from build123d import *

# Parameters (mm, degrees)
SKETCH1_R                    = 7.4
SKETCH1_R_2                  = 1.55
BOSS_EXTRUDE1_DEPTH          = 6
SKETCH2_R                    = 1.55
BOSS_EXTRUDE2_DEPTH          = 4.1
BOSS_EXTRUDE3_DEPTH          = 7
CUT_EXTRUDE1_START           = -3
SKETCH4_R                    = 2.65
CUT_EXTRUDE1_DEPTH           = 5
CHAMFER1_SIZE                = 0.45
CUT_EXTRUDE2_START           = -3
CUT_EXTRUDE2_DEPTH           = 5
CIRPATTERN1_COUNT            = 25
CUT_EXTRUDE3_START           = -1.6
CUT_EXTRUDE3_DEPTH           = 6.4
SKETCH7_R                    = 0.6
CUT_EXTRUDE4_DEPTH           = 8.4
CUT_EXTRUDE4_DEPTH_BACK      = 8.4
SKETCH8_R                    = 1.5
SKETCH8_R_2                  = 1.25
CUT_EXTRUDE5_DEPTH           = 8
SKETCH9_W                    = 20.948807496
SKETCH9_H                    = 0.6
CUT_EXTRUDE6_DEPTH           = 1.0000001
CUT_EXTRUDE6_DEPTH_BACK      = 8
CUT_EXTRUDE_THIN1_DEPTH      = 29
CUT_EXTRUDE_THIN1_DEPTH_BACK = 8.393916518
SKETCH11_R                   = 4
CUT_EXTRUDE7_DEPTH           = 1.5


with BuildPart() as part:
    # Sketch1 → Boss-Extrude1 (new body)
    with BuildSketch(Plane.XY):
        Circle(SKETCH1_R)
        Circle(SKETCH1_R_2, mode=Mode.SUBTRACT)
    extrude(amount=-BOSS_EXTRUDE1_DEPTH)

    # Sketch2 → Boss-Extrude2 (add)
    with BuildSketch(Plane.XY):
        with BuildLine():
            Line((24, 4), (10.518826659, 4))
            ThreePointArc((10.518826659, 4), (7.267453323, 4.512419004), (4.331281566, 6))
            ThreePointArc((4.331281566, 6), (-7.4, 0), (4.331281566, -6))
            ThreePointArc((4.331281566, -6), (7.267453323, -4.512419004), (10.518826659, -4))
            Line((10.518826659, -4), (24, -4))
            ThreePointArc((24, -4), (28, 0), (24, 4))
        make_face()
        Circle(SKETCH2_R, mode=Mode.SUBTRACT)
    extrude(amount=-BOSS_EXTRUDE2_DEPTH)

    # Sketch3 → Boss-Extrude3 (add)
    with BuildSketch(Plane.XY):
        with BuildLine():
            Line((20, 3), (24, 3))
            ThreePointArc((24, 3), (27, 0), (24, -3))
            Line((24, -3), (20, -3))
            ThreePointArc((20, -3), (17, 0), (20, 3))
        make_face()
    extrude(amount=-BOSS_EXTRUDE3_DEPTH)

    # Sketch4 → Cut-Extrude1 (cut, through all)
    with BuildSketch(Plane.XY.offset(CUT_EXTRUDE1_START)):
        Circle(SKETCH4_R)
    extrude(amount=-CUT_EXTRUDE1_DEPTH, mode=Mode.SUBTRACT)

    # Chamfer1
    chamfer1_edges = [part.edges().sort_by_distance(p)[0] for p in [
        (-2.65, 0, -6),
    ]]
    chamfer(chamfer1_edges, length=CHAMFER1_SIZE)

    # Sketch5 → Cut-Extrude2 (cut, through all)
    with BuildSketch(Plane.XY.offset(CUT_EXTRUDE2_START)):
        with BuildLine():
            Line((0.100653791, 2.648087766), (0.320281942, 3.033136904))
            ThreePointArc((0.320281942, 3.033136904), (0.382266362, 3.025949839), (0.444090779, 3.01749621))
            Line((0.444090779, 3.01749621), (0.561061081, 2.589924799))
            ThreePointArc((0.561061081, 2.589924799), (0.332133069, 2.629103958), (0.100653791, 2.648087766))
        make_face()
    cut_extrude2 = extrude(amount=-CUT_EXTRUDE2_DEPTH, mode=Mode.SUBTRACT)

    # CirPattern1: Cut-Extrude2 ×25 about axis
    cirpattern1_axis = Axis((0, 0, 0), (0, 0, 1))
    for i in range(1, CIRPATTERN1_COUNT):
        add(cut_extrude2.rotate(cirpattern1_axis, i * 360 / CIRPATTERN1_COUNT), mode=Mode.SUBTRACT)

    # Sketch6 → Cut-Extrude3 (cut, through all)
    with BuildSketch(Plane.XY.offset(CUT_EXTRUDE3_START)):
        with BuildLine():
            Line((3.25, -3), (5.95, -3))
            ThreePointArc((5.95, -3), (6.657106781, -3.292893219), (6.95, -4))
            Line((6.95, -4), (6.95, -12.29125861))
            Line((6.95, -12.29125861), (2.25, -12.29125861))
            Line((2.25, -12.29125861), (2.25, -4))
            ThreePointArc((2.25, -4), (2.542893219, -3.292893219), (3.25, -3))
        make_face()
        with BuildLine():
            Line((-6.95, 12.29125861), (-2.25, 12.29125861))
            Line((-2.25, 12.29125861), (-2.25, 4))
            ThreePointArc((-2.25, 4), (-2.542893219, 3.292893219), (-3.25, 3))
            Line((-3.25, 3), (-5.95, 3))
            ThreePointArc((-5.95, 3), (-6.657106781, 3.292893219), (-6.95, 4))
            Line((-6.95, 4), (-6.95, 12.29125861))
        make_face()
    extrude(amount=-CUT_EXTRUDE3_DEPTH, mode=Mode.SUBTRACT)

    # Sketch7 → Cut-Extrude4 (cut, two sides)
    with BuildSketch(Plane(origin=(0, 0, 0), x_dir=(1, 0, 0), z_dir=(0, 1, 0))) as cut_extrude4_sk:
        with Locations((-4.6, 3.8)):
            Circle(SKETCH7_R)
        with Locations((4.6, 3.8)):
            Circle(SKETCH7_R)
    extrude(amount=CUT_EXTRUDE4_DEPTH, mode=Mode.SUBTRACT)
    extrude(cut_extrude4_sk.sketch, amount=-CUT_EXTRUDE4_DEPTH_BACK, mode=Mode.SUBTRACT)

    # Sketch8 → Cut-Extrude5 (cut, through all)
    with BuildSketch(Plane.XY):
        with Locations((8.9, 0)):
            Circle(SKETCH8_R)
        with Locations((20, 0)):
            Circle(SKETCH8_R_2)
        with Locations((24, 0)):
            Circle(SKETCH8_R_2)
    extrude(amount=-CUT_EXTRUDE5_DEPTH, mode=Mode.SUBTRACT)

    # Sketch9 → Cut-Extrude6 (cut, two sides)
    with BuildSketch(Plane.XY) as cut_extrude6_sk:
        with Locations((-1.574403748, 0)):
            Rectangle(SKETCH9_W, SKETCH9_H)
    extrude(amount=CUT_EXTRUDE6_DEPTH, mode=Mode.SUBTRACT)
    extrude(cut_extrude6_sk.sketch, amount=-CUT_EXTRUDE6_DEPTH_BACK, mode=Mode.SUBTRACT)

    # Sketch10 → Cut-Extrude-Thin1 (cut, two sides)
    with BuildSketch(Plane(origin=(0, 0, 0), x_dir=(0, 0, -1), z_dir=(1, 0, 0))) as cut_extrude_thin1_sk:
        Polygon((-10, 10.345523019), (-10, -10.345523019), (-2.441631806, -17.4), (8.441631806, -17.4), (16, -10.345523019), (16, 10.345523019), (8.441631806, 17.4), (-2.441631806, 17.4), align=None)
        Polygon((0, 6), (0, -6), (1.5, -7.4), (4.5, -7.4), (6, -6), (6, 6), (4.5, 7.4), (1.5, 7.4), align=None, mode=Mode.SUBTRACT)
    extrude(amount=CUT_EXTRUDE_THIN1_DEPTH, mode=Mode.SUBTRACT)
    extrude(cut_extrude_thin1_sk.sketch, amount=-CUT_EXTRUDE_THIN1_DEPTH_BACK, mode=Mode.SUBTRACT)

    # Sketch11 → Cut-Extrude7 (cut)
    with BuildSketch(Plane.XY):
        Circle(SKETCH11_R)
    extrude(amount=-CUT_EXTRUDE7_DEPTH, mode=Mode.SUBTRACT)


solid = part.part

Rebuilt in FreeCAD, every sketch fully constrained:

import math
import FreeCAD as App
import Part
import Sketcher

V = App.Vector
Q = App.Units.Quantity


def edges_at(feature, points):
    """Names of the edges that pass closest to the given points."""
    edges = feature.Shape.Edges
    near = lambda p: min(range(len(edges)), key=lambda i: edges[i].distToShape(Part.Vertex(*p))[0])
    return sorted({f"Edge{near(p) + 1}" for p in points})

doc = App.newDocument("Part")
body = doc.addObject("PartDesign::Body", "Body")

sketch1 = doc.addObject("Sketcher::SketchObject", "Sketch")
body.addObject(sketch1)
sketch1.AttachmentSupport = (doc.XY_Plane, [""])
sketch1.MapMode = "FlatFace"
sketch1.addGeometry(Part.Circle(V(0, 0, 0), V(0, 0, 1), 7.4), False)
sketch1.addGeometry(Part.Circle(V(0, 0, 0), V(0, 0, 1), 1.6), False)
sketch1.addConstraint(Sketcher.Constraint("Coincident", 0, 3, -1, 1))
sketch1.addConstraint(Sketcher.Constraint("Coincident", 1, 3, -1, 1))
sketch1.addConstraint(Sketcher.Constraint("Diameter", 0, Q("14.8 mm")))
sketch1.addConstraint(Sketcher.Constraint("Diameter", 1, Q("3.1 mm")))
pad1 = doc.addObject("PartDesign::Pad", "Pad")
body.addObject(pad1)
pad1.Profile = sketch1
pad1.Length = 6
pad1.Reversed = True

sketch2 = doc.addObject("Sketcher::SketchObject", "Sketch001")
body.addObject(sketch2)
sketch2.AttachmentSupport = (doc.XY_Plane, [""])
sketch2.MapMode = "FlatFace"
sketch2.addGeometry(Part.LineSegment(V(24, 4, 0), V(10.5, 4, 0)), False)
sketch2.addGeometry(Part.ArcOfCircle(Part.Circle(V(10.5, 14.6, 0), V(0, 0, 1), 10.6), math.radians(-126), math.radians(-90)), False)
sketch2.addGeometry(Part.ArcOfCircle(Part.Circle(V(0, 0, 0), V(0, 0, 1), 7.4), math.radians(54), math.radians(306)), False)
sketch2.addGeometry(Part.ArcOfCircle(Part.Circle(V(10.5, -14.6, 0), V(0, 0, 1), 10.6), math.radians(90), math.radians(126)), False)
sketch2.addGeometry(Part.LineSegment(V(10.5, -4, 0), V(24, -4, 0)), False)
sketch2.addGeometry(Part.ArcOfCircle(Part.Circle(V(24, 0, 0), V(0, 0, 1), 4), math.radians(-90), math.radians(90)), False)
sketch2.addGeometry(Part.Circle(V(0, 0, 0), V(0, 0, 1), 1.6), False)
sketch2.addConstraint(Sketcher.Constraint("Tangent", 0, 2, 1, 2))
sketch2.addConstraint(Sketcher.Constraint("Tangent", 1, 1, 2, 1))
sketch2.addConstraint(Sketcher.Constraint("Tangent", 2, 2, 3, 2))
sketch2.addConstraint(Sketcher.Constraint("Tangent", 3, 1, 4, 1))
sketch2.addConstraint(Sketcher.Constraint("Tangent", 4, 2, 5, 1))
sketch2.addConstraint(Sketcher.Constraint("Tangent", 5, 2, 0, 1))
sketch2.addConstraint(Sketcher.Constraint("Horizontal", 0))
sketch2.addConstraint(Sketcher.Constraint("Horizontal", 4))
sketch2.addConstraint(Sketcher.Constraint("Coincident", 2, 3, -1, 1))
sketch2.addConstraint(Sketcher.Constraint("Coincident", 6, 3, -1, 1))
sketch2.addConstraint(Sketcher.Constraint("Equal", 1, 3))
sketch2.addConstraint(Sketcher.Constraint("PointOnObject", 5, 3, -1))
sketch2.addConstraint(Sketcher.Constraint("Radius", 5, Q("4 mm")))
sketch2.addConstraint(Sketcher.Constraint("Diameter", 6, Q("3.1 mm")))
sketch2.addConstraint(Sketcher.Constraint("Radius", 2, Q("7.4 mm")))
sketch2.addConstraint(Sketcher.Constraint("DistanceX", -1, 1, 5, 3, Q("24 mm")))
sketch2.addConstraint(Sketcher.Constraint("DistanceY", -1, 1, 1, 1, Q("6 mm")))
pad2 = doc.addObject("PartDesign::Pad", "Pad001")
body.addObject(pad2)
pad2.Profile = sketch2
pad2.Length = 4.1
pad2.Reversed = True

sketch3 = doc.addObject("Sketcher::SketchObject", "Sketch002")
body.addObject(sketch3)
sketch3.AttachmentSupport = (doc.XY_Plane, [""])
sketch3.MapMode = "FlatFace"
sketch3.addGeometry(Part.LineSegment(V(24, 3, 0), V(20, 3, 0)), False)
sketch3.addGeometry(Part.ArcOfCircle(Part.Circle(V(20, 0, 0), V(0, 0, 1), 3), math.radians(90), math.radians(270)), False)
sketch3.addGeometry(Part.LineSegment(V(20, -3, 0), V(24, -3, 0)), False)
sketch3.addGeometry(Part.ArcOfCircle(Part.Circle(V(24, 0, 0), V(0, 0, 1), 3), math.radians(-90), math.radians(90)), False)
sketch3.addConstraint(Sketcher.Constraint("Tangent", 0, 2, 1, 1))
sketch3.addConstraint(Sketcher.Constraint("Tangent", 1, 2, 2, 1))
sketch3.addConstraint(Sketcher.Constraint("Tangent", 2, 2, 3, 1))
sketch3.addConstraint(Sketcher.Constraint("Tangent", 3, 2, 0, 1))
sketch3.addConstraint(Sketcher.Constraint("Horizontal", 0))
sketch3.addConstraint(Sketcher.Constraint("Horizontal", 2))
sketch3.addConstraint(Sketcher.Constraint("PointOnObject", 1, 3, -1))
sketch3.addConstraint(Sketcher.Constraint("Radius", 1, Q("3 mm")))
sketch3.addConstraint(Sketcher.Constraint("DistanceX", 0, 2, 0, 1, Q("4 mm")))
sketch3.addConstraint(Sketcher.Constraint("DistanceX", -1, 1, 1, 3, Q("20 mm")))
pad3 = doc.addObject("PartDesign::Pad", "Pad002")
body.addObject(pad3)
pad3.Profile = sketch3
pad3.Length = 7
pad3.Reversed = True

sketch4 = doc.addObject("Sketcher::SketchObject", "Sketch003")
body.addObject(sketch4)
sketch4.AttachmentSupport = (doc.XY_Plane, [""])
sketch4.MapMode = "FlatFace"
sketch4.AttachmentOffset = App.Placement(V(0, 0, -3), App.Rotation())
sketch4.addGeometry(Part.Circle(V(0, 0, 0), V(0, 0, 1), 2.6), False)
sketch4.addConstraint(Sketcher.Constraint("Coincident", 0, 3, -1, 1))
sketch4.addConstraint(Sketcher.Constraint("Diameter", 0, Q("5.3 mm")))
pocket1 = doc.addObject("PartDesign::Pocket", "Pocket")
body.addObject(pocket1)
pocket1.Profile = sketch4
pocket1.Type = "ThroughAll"
doc.recompute()

chamfer = doc.addObject("PartDesign::Chamfer", "Chamfer")
body.addObject(chamfer)
chamfer.Base = (pocket1, edges_at(pocket1, [(-2.65, 0, -6)]))
chamfer.Size = 0.45

sketch5 = doc.addObject("Sketcher::SketchObject", "Sketch004")
body.addObject(sketch5)
sketch5.AttachmentSupport = (doc.XY_Plane, [""])
sketch5.MapMode = "FlatFace"
sketch5.AttachmentOffset = App.Placement(V(0, 0, -3), App.Rotation())
sketch5.addGeometry(Part.LineSegment(V(0.32, 3.03, 0), V(0.1, 2.65, 0)), False)
sketch5.addGeometry(Part.ArcOfCircle(Part.Circle(V(0, 0, 0), V(0, 0, 1), 2.65), math.radians(77.78), math.radians(87.82)), False)
sketch5.addGeometry(Part.LineSegment(V(0.56, 2.59, 0), V(0.44, 3.02, 0)), False)
sketch5.addGeometry(Part.ArcOfCircle(Part.Circle(V(0, 0, 0), V(0, 0, 1), 3.05), math.radians(81.63), math.radians(83.97)), False)
sketch5.addConstraint(Sketcher.Constraint("Coincident", 0, 2, 1, 2))
sketch5.addConstraint(Sketcher.Constraint("Coincident", 1, 1, 2, 1))
sketch5.addConstraint(Sketcher.Constraint("Coincident", 2, 2, 3, 1))
sketch5.addConstraint(Sketcher.Constraint("Coincident", 3, 2, 0, 1))
sketch5.addConstraint(Sketcher.Constraint("Coincident", 1, 3, -1, 1))
sketch5.addConstraint(Sketcher.Constraint("Coincident", 3, 3, -1, 1))
sketch5.addConstraint(Sketcher.Constraint("Equal", 0, 2))
sketch5.addConstraint(Sketcher.Constraint("Radius", 1, Q("2.65 mm")))
sketch5.addConstraint(Sketcher.Constraint("Radius", 3, Q("3.05 mm")))
sketch5.addConstraint(Sketcher.Constraint("Angle", 0, Q("-119.7 deg")))
sketch5.addConstraint(Sketcher.Constraint("Angle", 2, Q("105.3 deg")))
sketch5.addConstraint(Sketcher.Constraint("DistanceX", -1, 1, 1, 1, Q("0.561061 mm")))
pocket2 = doc.addObject("PartDesign::Pocket", "Pocket001")
body.addObject(pocket2)
pocket2.Profile = sketch5
pocket2.Type = "ThroughAll"
doc.recompute()

polarpattern = doc.addObject("PartDesign::PolarPattern", "PolarPattern")
body.addObject(polarpattern)
polarpattern.Originals = [pocket2]
polarpattern.Axis = (doc.Z_Axis, [""])
polarpattern.Angle = 360
polarpattern.Occurrences = 25
body.Tip = polarpattern

sketch6 = doc.addObject("Sketcher::SketchObject", "Sketch005")
body.addObject(sketch6)
sketch6.AttachmentSupport = (doc.XY_Plane, [""])
sketch6.MapMode = "FlatFace"
sketch6.AttachmentOffset = App.Placement(V(0, 0, -1.6), App.Rotation())
sketch6.addGeometry(Part.LineSegment(V(6, -3, 0), V(3.2, -3, 0)), False)
sketch6.addGeometry(Part.ArcOfCircle(Part.Circle(V(3.3, -4, 0), V(0, 0, 1), 1), math.radians(90), math.radians(180)), False)
sketch6.addGeometry(Part.LineSegment(V(2.2, -4, 0), V(2.2, -12.3, 0)), False)
sketch6.addGeometry(Part.LineSegment(V(2.2, -12.3, 0), V(7, -12.3, 0)), False)
sketch6.addGeometry(Part.LineSegment(V(7, -12.3, 0), V(7, -4, 0)), False)
sketch6.addGeometry(Part.ArcOfCircle(Part.Circle(V(5.9, -4, 0), V(0, 0, 1), 1), math.radians(0), math.radians(90)), False)
sketch6.addGeometry(Part.LineSegment(V(-2.2, 12.3, 0), V(-7, 12.3, 0)), False)
sketch6.addGeometry(Part.LineSegment(V(-7, 12.3, 0), V(-7, 4, 0)), False)
sketch6.addGeometry(Part.ArcOfCircle(Part.Circle(V(-5.9, 4, 0), V(0, 0, 1), 1), math.radians(-180), math.radians(-90)), False)
sketch6.addGeometry(Part.LineSegment(V(-6, 3, 0), V(-3.2, 3, 0)), False)
sketch6.addGeometry(Part.ArcOfCircle(Part.Circle(V(-3.3, 4, 0), V(0, 0, 1), 1), math.radians(-90), math.radians(0)), False)
sketch6.addGeometry(Part.LineSegment(V(-2.2, 4, 0), V(-2.2, 12.3, 0)), False)
sketch6.addConstraint(Sketcher.Constraint("Tangent", 0, 2, 1, 1))
sketch6.addConstraint(Sketcher.Constraint("Tangent", 1, 2, 2, 1))
sketch6.addConstraint(Sketcher.Constraint("Coincident", 2, 2, 3, 1))
sketch6.addConstraint(Sketcher.Constraint("Coincident", 3, 2, 4, 1))
sketch6.addConstraint(Sketcher.Constraint("Tangent", 4, 2, 5, 1))
sketch6.addConstraint(Sketcher.Constraint("Tangent", 5, 2, 0, 1))
sketch6.addConstraint(Sketcher.Constraint("Coincident", 6, 2, 7, 1))
sketch6.addConstraint(Sketcher.Constraint("Tangent", 7, 2, 8, 1))
sketch6.addConstraint(Sketcher.Constraint("Tangent", 8, 2, 9, 1))
sketch6.addConstraint(Sketcher.Constraint("Tangent", 9, 2, 10, 1))
sketch6.addConstraint(Sketcher.Constraint("Tangent", 10, 2, 11, 1))
sketch6.addConstraint(Sketcher.Constraint("Coincident", 11, 2, 6, 1))
sketch6.addConstraint(Sketcher.Constraint("Horizontal", 0))
sketch6.addConstraint(Sketcher.Constraint("Vertical", 2))
sketch6.addConstraint(Sketcher.Constraint("Horizontal", 3))
sketch6.addConstraint(Sketcher.Constraint("Vertical", 4))
sketch6.addConstraint(Sketcher.Constraint("Horizontal", 6))
sketch6.addConstraint(Sketcher.Constraint("Vertical", 7))
sketch6.addConstraint(Sketcher.Constraint("Horizontal", 9))
sketch6.addConstraint(Sketcher.Constraint("Vertical", 11))
sketch6.addConstraint(Sketcher.Constraint("Equal", 1, 5))
sketch6.addConstraint(Sketcher.Constraint("Equal", 5, 8))
sketch6.addConstraint(Sketcher.Constraint("Equal", 8, 10))
sketch6.addConstraint(Sketcher.Constraint("Symmetric", 5, 3, 8, 3, -1, 1))
sketch6.addConstraint(Sketcher.Constraint("Symmetric", 2, 2, 11, 2, -1, 1))
sketch6.addConstraint(Sketcher.Constraint("Radius", 1, Q("1 mm")))
sketch6.addConstraint(Sketcher.Constraint("DistanceX", 0, 2, 0, 1, Q("2.7 mm")))
sketch6.addConstraint(Sketcher.Constraint("DistanceY", 1, 3, -1, 1, Q("4 mm")))
sketch6.addConstraint(Sketcher.Constraint("DistanceX", 8, 3, 1, 3, Q("9.2 mm")))
sketch6.addConstraint(Sketcher.Constraint("DistanceY", 2, 2, 2, 1, Q("8.291259 mm")))
pocket3 = doc.addObject("PartDesign::Pocket", "Pocket002")
body.addObject(pocket3)
pocket3.Profile = sketch6
pocket3.Type = "ThroughAll"

sketch7 = doc.addObject("Sketcher::SketchObject", "Sketch006")
body.addObject(sketch7)
sketch7.AttachmentSupport = (doc.XZ_Plane, [""])
sketch7.MapMode = "FlatFace"
sketch7.addGeometry(Part.Circle(V(-4.6, -3.8, 0), V(0, 0, 1), 0.6), False)
sketch7.addGeometry(Part.Circle(V(4.6, -3.8, 0), V(0, 0, 1), 0.6), False)
sketch7.addConstraint(Sketcher.Constraint("Equal", 0, 1))
sketch7.addConstraint(Sketcher.Constraint("Symmetric", 0, 3, 1, 3, -2))
sketch7.addConstraint(Sketcher.Constraint("Diameter", 0, Q("1.2 mm")))
sketch7.addConstraint(Sketcher.Constraint("DistanceX", 0, 3, -1, 1, Q("4.6 mm")))
sketch7.addConstraint(Sketcher.Constraint("DistanceY", 0, 3, -1, 1, Q("3.8 mm")))
pocket4 = doc.addObject("PartDesign::Pocket", "Pocket003")
body.addObject(pocket4)
pocket4.Profile = sketch7
pocket4.Type = "ThroughAll"
pocket4.Midplane = True

sketch8 = doc.addObject("Sketcher::SketchObject", "Sketch007")
body.addObject(sketch8)
sketch8.AttachmentSupport = (doc.XY_Plane, [""])
sketch8.MapMode = "FlatFace"
sketch8.addGeometry(Part.Circle(V(8.9, 0, 0), V(0, 0, 1), 1.5), False)
sketch8.addGeometry(Part.Circle(V(20, 0, 0), V(0, 0, 1), 1.2), False)
sketch8.addGeometry(Part.Circle(V(24, 0, 0), V(0, 0, 1), 1.2), False)
sketch8.addConstraint(Sketcher.Constraint("Equal", 1, 2))
sketch8.addConstraint(Sketcher.Constraint("PointOnObject", 0, 3, -1))
sketch8.addConstraint(Sketcher.Constraint("PointOnObject", 1, 3, -1))
sketch8.addConstraint(Sketcher.Constraint("PointOnObject", 2, 3, -1))
sketch8.addConstraint(Sketcher.Constraint("Diameter", 0, Q("3 mm")))
sketch8.addConstraint(Sketcher.Constraint("Diameter", 1, Q("2.5 mm")))
sketch8.addConstraint(Sketcher.Constraint("DistanceX", -1, 1, 1, 3, Q("20 mm")))
sketch8.addConstraint(Sketcher.Constraint("DistanceX", -1, 1, 2, 3, Q("24 mm")))
sketch8.addConstraint(Sketcher.Constraint("DistanceX", -1, 1, 0, 3, Q("8.9 mm")))
pocket5 = doc.addObject("PartDesign::Pocket", "Pocket004")
body.addObject(pocket5)
pocket5.Profile = sketch8
pocket5.Type = "ThroughAll"

sketch9 = doc.addObject("Sketcher::SketchObject", "Sketch008")
body.addObject(sketch9)
sketch9.AttachmentSupport = (doc.XY_Plane, [""])
sketch9.MapMode = "FlatFace"
sketch9.addGeometry(Part.LineSegment(V(-12, 0.3, 0), V(-12, -0.3, 0)), False)
sketch9.addGeometry(Part.LineSegment(V(-12, -0.3, 0), V(8.9, -0.3, 0)), False)
sketch9.addGeometry(Part.LineSegment(V(8.9, -0.3, 0), V(8.9, 0.3, 0)), False)
sketch9.addGeometry(Part.LineSegment(V(8.9, 0.3, 0), V(-12, 0.3, 0)), False)
sketch9.addConstraint(Sketcher.Constraint("Coincident", 0, 2, 1, 1))
sketch9.addConstraint(Sketcher.Constraint("Coincident", 1, 2, 2, 1))
sketch9.addConstraint(Sketcher.Constraint("Coincident", 2, 2, 3, 1))
sketch9.addConstraint(Sketcher.Constraint("Coincident", 3, 2, 0, 1))
sketch9.addConstraint(Sketcher.Constraint("Vertical", 0))
sketch9.addConstraint(Sketcher.Constraint("Horizontal", 1))
sketch9.addConstraint(Sketcher.Constraint("Vertical", 2))
sketch9.addConstraint(Sketcher.Constraint("Horizontal", 3))
sketch9.addConstraint(Sketcher.Constraint("DistanceY", 0, 2, 0, 1, Q("0.6 mm")))
sketch9.addConstraint(Sketcher.Constraint("DistanceY", 0, 2, -1, 1, Q("0.3 mm")))
sketch9.addConstraint(Sketcher.Constraint("DistanceX", -1, 1, 1, 2, Q("8.9 mm")))
sketch9.addConstraint(Sketcher.Constraint("DistanceX", 1, 1, 1, 2, Q("20.948807 mm")))
pocket6 = doc.addObject("PartDesign::Pocket", "Pocket005")
body.addObject(pocket6)
pocket6.Profile = sketch9
pocket6.Type = "ThroughAll"
pocket6.Midplane = True

sketch10 = doc.addObject("Sketcher::SketchObject", "Sketch009")
body.addObject(sketch10)
sketch10.AttachmentSupport = (doc.YZ_Plane, [""])
sketch10.MapMode = "FlatFace"
sketch10.addGeometry(Part.LineSegment(V(10.3, 10, 0), V(-10.3, 10, 0)), False)
sketch10.addGeometry(Part.LineSegment(V(-10.3, 10, 0), V(-17.4, 2.4, 0)), False)
sketch10.addGeometry(Part.LineSegment(V(-17.4, 2.4, 0), V(-17.4, -8.4, 0)), False)
sketch10.addGeometry(Part.LineSegment(V(-17.4, -8.4, 0), V(-10.3, -16, 0)), False)
sketch10.addGeometry(Part.LineSegment(V(-10.3, -16, 0), V(10.3, -16, 0)), False)
sketch10.addGeometry(Part.LineSegment(V(10.3, -16, 0), V(17.4, -8.4, 0)), False)
sketch10.addGeometry(Part.LineSegment(V(17.4, -8.4, 0), V(17.4, 2.4, 0)), False)
sketch10.addGeometry(Part.LineSegment(V(17.4, 2.4, 0), V(10.3, 10, 0)), False)
sketch10.addGeometry(Part.LineSegment(V(-6, 0, 0), V(6, 0, 0)), False)
sketch10.addGeometry(Part.LineSegment(V(6, 0, 0), V(7.4, -1.5, 0)), False)
sketch10.addGeometry(Part.LineSegment(V(7.4, -1.5, 0), V(7.4, -4.5, 0)), False)
sketch10.addGeometry(Part.LineSegment(V(7.4, -4.5, 0), V(6, -6, 0)), False)
sketch10.addGeometry(Part.LineSegment(V(6, -6, 0), V(-6, -6, 0)), False)
sketch10.addGeometry(Part.LineSegment(V(-6, -6, 0), V(-7.4, -4.5, 0)), False)
sketch10.addGeometry(Part.LineSegment(V(-7.4, -4.5, 0), V(-7.4, -1.5, 0)), False)
sketch10.addGeometry(Part.LineSegment(V(-7.4, -1.5, 0), V(-6, 0, 0)), False)
sketch10.addConstraint(Sketcher.Constraint("Coincident", 0, 2, 1, 1))
sketch10.addConstraint(Sketcher.Constraint("Coincident", 1, 2, 2, 1))
sketch10.addConstraint(Sketcher.Constraint("Coincident", 2, 2, 3, 1))
sketch10.addConstraint(Sketcher.Constraint("Coincident", 3, 2, 4, 1))
sketch10.addConstraint(Sketcher.Constraint("Coincident", 4, 2, 5, 1))
sketch10.addConstraint(Sketcher.Constraint("Coincident", 5, 2, 6, 1))
sketch10.addConstraint(Sketcher.Constraint("Coincident", 6, 2, 7, 1))
sketch10.addConstraint(Sketcher.Constraint("Coincident", 7, 2, 0, 1))
sketch10.addConstraint(Sketcher.Constraint("Coincident", 8, 2, 9, 1))
sketch10.addConstraint(Sketcher.Constraint("Coincident", 9, 2, 10, 1))
sketch10.addConstraint(Sketcher.Constraint("Coincident", 10, 2, 11, 1))
sketch10.addConstraint(Sketcher.Constraint("Coincident", 11, 2, 12, 1))
sketch10.addConstraint(Sketcher.Constraint("Coincident", 12, 2, 13, 1))
sketch10.addConstraint(Sketcher.Constraint("Coincident", 13, 2, 14, 1))
sketch10.addConstraint(Sketcher.Constraint("Coincident", 14, 2, 15, 1))
sketch10.addConstraint(Sketcher.Constraint("Coincident", 15, 2, 8, 1))
sketch10.addConstraint(Sketcher.Constraint("Horizontal", 0))
sketch10.addConstraint(Sketcher.Constraint("Vertical", 2))
sketch10.addConstraint(Sketcher.Constraint("Horizontal", 4))
sketch10.addConstraint(Sketcher.Constraint("Vertical", 6))
sketch10.addConstraint(Sketcher.Constraint("Horizontal", 8))
sketch10.addConstraint(Sketcher.Constraint("Vertical", 10))
sketch10.addConstraint(Sketcher.Constraint("Horizontal", 12))
sketch10.addConstraint(Sketcher.Constraint("Vertical", 14))
sketch10.addConstraint(Sketcher.Constraint("Symmetric", 8, 2, 15, 2, -1, 1))
sketch10.addConstraint(Sketcher.Constraint("Symmetric", 2, 2, 5, 2, -2))
sketch10.addConstraint(Sketcher.Constraint("Symmetric", 10, 2, 13, 2, -2))
sketch10.addConstraint(Sketcher.Constraint("Parallel", 1, 5))
sketch10.addConstraint(Sketcher.Constraint("Parallel", 3, 7))
sketch10.addConstraint(Sketcher.Constraint("Parallel", 7, 9))
sketch10.addConstraint(Sketcher.Constraint("Parallel", 5, 11))
sketch10.addConstraint(Sketcher.Constraint("Parallel", 9, 13))
sketch10.addConstraint(Sketcher.Constraint("Parallel", 11, 15))
sketch10.addConstraint(Sketcher.Constraint("Horizontal", 1, 2, 6, 2))
sketch10.addConstraint(Sketcher.Constraint("Horizontal", 9, 2, 14, 2))
sketch10.addConstraint(Sketcher.Constraint("Vertical", 0, 2, 3, 2))
sketch10.addConstraint(Sketcher.Constraint("Vertical", 8, 2, 11, 2))
sketch10.addConstraint(Sketcher.Constraint("DistanceX", 8, 1, 8, 2, Q("12 mm")))
sketch10.addConstraint(Sketcher.Constraint("DistanceY", 10, 2, 10, 1, Q("3 mm")))
sketch10.addConstraint(Sketcher.Constraint("DistanceY", -1, 1, 0, 2, Q("10 mm")))
sketch10.addConstraint(Sketcher.Constraint("DistanceY", 3, 2, -1, 1, Q("16 mm")))
sketch10.addConstraint(Sketcher.Constraint("DistanceY", 11, 2, -1, 1, Q("6 mm")))
sketch10.addConstraint(Sketcher.Constraint("DistanceX", 9, 2, 6, 2, Q("10 mm")))
sketch10.addConstraint(Sketcher.Constraint("DistanceX", 1, 2, -1, 1, Q("17.4 mm")))
sketch10.addConstraint(Sketcher.Constraint("DistanceX", 0, 2, 0, 1, Q("20.691046 mm")))
pocket7 = doc.addObject("PartDesign::Pocket", "Pocket006")
body.addObject(pocket7)
pocket7.Profile = sketch10
pocket7.Type = "ThroughAll"
pocket7.Midplane = True

sketch11 = doc.addObject("Sketcher::SketchObject", "Sketch010")
body.addObject(sketch11)
sketch11.AttachmentSupport = (doc.XY_Plane, [""])
sketch11.MapMode = "FlatFace"
sketch11.addGeometry(Part.Circle(V(0, 0, 0), V(0, 0, 1), 4), False)
sketch11.addConstraint(Sketcher.Constraint("Coincident", 0, 3, -1, 1))
sketch11.addConstraint(Sketcher.Constraint("Diameter", 0, Q("8 mm")))
pocket8 = doc.addObject("PartDesign::Pocket", "Pocket007")
body.addObject(pocket8)
pocket8.Profile = sketch11
pocket8.Length = 1.5

doc.recompute()
